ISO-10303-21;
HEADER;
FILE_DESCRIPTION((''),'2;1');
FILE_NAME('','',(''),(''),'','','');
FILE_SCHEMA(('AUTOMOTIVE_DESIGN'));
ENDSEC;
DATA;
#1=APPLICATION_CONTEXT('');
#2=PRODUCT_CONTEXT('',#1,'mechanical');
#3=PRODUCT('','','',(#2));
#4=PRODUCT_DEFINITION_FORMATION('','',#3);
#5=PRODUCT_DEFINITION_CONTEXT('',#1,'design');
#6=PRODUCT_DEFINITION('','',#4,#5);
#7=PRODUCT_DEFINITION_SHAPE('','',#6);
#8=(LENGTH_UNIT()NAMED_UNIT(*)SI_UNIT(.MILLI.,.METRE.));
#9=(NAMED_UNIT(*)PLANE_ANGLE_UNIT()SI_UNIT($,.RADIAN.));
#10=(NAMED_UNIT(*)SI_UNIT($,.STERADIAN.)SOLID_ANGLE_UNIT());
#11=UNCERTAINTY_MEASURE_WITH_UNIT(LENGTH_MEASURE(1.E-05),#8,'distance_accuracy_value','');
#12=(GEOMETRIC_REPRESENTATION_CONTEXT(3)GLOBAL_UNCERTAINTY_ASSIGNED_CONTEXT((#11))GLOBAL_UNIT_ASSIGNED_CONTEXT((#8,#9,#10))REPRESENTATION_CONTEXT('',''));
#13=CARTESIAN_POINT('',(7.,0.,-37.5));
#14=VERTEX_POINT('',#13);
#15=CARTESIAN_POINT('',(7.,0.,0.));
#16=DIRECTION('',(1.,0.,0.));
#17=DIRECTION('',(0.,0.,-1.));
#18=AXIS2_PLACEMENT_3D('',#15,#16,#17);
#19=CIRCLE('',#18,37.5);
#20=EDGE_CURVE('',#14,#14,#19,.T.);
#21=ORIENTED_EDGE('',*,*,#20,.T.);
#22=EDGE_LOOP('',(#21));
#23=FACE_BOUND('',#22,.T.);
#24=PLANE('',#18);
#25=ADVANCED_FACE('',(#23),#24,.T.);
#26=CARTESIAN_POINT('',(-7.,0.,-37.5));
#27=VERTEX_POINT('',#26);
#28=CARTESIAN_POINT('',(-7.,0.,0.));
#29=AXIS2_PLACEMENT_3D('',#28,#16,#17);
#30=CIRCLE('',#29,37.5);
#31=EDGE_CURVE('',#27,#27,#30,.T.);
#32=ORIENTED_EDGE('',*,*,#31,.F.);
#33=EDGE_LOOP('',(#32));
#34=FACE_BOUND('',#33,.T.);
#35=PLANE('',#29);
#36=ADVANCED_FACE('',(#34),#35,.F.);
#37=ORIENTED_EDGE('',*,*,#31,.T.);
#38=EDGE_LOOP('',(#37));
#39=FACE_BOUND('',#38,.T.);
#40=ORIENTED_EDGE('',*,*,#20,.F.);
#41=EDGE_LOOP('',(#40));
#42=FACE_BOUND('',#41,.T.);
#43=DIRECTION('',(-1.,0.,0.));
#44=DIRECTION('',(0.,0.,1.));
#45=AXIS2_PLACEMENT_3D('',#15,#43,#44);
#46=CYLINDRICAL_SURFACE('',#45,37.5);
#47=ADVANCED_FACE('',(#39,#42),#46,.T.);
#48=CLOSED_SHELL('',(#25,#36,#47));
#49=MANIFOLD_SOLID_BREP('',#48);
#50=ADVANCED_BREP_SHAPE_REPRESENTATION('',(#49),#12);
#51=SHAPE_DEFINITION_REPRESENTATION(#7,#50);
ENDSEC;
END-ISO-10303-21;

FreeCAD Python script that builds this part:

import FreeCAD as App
import Part
import Sketcher
Q = App.Units.Quantity

doc = App.newDocument("Part")
params = doc.addObject("Spreadsheet::Sheet", "Params")
for row, (alias, value) in enumerate([
    ("sketch1_diameter", "75 mm"),
    ("pad1_length", "14 mm"),
], start=1):
    params.set(f"A{row}", alias)
    params.set(f"B{row}", "=" + value)
    params.setAlias(f"B{row}", alias)

body = doc.addObject("PartDesign::Body", "Body")

# Sketch on YZ plane
sketch1 = body.newObject("Sketcher::SketchObject", "Sketch")
sketch1.AttachmentSupport = (doc.getObject("YZ_Plane"), [""])
sketch1.MapMode = "FlatFace"
sketch1.addGeometry(Part.Circle(App.Vector(0, 0, 0), App.Vector(0, 0, 1), 37.5), False)
sketch1.addConstraint([
    Sketcher.Constraint("Coincident", 0, 3, -1, 1),
    Sketcher.Constraint("Diameter", 0, Q("75 mm")),
])
sketch1.setExpression("Constraints[1]", "Params.sketch1_diameter")
pad1 = body.newObject("PartDesign::Pad", "Pad")
pad1.Profile = sketch1
pad1.setExpression("Length", "Params.pad1_length")
pad1.Midplane = True

doc.recompute()
